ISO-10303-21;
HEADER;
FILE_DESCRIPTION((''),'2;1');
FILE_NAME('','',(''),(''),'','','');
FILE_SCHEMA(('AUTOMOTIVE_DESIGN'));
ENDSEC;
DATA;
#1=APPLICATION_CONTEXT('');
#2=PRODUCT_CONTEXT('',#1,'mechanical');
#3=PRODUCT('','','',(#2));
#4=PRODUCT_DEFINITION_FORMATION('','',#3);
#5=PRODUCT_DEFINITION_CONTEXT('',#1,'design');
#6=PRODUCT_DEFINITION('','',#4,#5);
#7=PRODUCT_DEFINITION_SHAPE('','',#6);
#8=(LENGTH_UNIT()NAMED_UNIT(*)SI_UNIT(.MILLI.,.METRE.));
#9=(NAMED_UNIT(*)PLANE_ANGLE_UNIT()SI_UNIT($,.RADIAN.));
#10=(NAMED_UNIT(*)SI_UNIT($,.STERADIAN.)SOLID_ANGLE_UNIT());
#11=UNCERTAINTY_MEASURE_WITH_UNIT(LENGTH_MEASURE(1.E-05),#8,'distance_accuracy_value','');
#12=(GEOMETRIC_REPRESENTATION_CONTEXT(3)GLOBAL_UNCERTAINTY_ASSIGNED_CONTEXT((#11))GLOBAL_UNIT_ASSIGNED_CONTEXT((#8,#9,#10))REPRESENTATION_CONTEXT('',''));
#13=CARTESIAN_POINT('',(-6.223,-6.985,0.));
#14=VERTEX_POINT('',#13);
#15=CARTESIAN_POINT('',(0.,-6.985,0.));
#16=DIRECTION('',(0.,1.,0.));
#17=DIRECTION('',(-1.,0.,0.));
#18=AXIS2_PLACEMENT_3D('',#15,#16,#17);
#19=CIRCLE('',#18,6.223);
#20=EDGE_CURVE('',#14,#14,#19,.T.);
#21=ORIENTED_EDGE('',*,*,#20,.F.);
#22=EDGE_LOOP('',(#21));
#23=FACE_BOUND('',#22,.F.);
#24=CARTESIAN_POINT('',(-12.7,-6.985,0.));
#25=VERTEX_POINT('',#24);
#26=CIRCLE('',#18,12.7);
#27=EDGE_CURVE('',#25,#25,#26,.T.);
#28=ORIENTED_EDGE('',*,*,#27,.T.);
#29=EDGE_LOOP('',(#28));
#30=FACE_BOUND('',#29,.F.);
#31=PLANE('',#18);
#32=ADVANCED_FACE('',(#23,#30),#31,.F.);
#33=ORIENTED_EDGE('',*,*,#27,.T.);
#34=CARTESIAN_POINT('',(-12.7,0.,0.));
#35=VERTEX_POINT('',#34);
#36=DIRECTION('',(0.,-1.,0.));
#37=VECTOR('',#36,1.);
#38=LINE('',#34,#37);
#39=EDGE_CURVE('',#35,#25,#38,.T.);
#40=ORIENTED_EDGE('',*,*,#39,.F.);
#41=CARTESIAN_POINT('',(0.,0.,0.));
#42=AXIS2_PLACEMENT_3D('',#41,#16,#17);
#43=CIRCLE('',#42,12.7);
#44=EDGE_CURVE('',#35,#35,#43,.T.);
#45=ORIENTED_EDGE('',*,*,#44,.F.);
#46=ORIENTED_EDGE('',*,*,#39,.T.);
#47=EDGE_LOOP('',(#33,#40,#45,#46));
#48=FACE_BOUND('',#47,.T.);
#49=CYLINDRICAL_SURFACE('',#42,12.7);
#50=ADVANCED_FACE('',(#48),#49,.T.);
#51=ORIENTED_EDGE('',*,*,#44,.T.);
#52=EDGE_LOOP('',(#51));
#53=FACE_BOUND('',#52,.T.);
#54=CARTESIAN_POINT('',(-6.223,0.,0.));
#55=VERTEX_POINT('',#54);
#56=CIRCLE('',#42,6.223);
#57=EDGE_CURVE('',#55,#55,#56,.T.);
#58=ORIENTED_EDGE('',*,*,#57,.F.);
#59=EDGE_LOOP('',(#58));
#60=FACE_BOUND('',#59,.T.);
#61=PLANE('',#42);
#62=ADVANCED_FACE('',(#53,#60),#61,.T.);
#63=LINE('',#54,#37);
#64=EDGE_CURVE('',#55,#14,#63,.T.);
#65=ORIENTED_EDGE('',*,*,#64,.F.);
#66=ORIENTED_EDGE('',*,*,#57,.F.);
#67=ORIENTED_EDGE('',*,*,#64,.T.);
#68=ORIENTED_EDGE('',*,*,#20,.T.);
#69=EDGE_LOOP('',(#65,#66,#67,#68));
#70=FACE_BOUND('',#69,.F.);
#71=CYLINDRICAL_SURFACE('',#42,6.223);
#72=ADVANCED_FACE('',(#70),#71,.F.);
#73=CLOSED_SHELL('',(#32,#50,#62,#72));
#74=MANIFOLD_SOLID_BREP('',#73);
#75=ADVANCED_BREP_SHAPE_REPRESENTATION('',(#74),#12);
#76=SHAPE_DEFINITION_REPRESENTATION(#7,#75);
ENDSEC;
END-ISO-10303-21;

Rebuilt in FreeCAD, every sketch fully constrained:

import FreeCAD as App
import Part
import Sketcher
from FreeCAD import Vector
Q = App.Units.Quantity

doc = App.newDocument("Part")
body = doc.addObject("PartDesign::Body", "Body")

# Sketch on XZ plane
sketch1 = body.newObject("Sketcher::SketchObject", "Sketch")
sketch1.AttachmentSupport = (doc.getObject("XZ_Plane"), [""])
sketch1.MapMode = "FlatFace"
sketch1.addGeometry([
    Part.Circle(Vector(0, 0, 0), Vector(0, 0, 1), 13),
    Part.Circle(Vector(0, 0, 0), Vector(0, 0, 1), 6),
], False)
sketch1.addConstraint([
    Sketcher.Constraint("Coincident", 0, 3, -1, 1),
    Sketcher.Constraint("Coincident", 1, 3, -1, 1),
    Sketcher.Constraint("Diameter", 0, Q("1 in")),
    Sketcher.Constraint("Diameter", 1, Q("0.49 in")),
])
pad1 = body.newObject("PartDesign::Pad", "Pad")
pad1.Profile = sketch1
pad1.Length = Q("0.275 in")

doc.recompute()
